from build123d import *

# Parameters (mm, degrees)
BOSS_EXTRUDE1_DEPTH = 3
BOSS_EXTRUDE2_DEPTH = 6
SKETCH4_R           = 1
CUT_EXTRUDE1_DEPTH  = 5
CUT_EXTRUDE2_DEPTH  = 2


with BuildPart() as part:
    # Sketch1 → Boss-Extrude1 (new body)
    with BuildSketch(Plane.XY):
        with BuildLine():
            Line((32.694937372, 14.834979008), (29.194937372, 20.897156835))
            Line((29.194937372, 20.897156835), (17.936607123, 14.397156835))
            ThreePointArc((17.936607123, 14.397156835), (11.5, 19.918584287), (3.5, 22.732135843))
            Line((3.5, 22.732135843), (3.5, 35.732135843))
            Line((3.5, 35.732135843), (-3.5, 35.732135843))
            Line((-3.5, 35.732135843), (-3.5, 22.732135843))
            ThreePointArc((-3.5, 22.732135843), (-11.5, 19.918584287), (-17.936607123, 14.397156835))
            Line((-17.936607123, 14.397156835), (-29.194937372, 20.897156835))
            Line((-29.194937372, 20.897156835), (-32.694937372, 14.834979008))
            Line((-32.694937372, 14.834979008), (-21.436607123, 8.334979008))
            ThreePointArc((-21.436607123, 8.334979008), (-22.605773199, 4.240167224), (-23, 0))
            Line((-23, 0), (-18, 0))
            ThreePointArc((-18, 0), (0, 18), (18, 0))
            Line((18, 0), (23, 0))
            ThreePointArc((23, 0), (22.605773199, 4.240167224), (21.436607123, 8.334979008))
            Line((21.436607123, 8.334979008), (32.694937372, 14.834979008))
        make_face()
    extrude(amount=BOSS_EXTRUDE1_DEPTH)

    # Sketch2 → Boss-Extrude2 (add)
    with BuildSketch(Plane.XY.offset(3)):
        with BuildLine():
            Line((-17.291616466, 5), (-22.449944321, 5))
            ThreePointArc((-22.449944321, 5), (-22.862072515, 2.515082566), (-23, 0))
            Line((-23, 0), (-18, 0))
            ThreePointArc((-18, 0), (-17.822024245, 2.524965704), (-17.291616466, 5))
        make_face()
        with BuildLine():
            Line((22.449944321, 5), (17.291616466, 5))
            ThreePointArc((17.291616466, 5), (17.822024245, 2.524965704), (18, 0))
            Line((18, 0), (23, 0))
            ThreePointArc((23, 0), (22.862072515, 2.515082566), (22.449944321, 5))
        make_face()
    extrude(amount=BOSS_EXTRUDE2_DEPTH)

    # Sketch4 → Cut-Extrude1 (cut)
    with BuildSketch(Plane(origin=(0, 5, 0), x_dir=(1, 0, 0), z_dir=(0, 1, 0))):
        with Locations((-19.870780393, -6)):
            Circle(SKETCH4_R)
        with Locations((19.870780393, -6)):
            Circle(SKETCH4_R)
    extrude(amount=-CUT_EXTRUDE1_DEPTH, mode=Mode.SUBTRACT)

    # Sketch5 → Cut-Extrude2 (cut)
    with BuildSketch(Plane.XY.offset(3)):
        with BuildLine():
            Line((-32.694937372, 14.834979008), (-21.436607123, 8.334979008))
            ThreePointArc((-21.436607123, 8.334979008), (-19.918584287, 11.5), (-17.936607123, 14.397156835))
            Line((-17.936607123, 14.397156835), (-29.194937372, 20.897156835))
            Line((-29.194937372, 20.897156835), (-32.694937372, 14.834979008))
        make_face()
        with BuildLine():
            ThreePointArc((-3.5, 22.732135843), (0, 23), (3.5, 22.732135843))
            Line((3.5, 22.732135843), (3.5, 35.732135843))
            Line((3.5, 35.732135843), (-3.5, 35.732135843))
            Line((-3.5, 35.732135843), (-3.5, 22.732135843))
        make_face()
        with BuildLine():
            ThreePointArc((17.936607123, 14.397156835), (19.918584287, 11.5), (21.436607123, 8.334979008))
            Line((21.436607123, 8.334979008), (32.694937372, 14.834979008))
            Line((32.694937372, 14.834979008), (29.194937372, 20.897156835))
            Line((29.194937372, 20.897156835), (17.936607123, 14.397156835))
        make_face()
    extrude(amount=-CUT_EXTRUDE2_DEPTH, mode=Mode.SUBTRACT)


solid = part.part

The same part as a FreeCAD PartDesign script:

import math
import FreeCAD as App
import Part
import Sketcher
Q = App.Units.Quantity

doc = App.newDocument("Part")
body = doc.addObject("PartDesign::Body", "Body")

# Sketch on XY plane
sketch1 = doc.addObject("Sketcher::SketchObject", "Sketch")
body.addObject(sketch1)
sketch1.AttachmentSupport = (doc.XY_Plane, [""])
sketch1.MapMode = "FlatFace"
sketch1.addGeometry(Part.LineSegment(App.Vector(32.694937, 14.834979, 0), App.Vector(29.194937, 20.897157, 0)), False)
sketch1.addGeometry(Part.LineSegment(App.Vector(29.194937, 20.897157, 0), App.Vector(17.936607, 14.397157, 0)), False)
sketch1.addGeometry(Part.ArcOfCircle(Part.Circle(App.Vector(0, 0, 0), App.Vector(0, 0, 1), 23), math.radians(38.752929), math.radians(81.247071)), False)
sketch1.addGeometry(Part.LineSegment(App.Vector(3.5, 22.732136, 0), App.Vector(3.5, 35.732136, 0)), False)
sketch1.addGeometry(Part.LineSegment(App.Vector(3.5, 35.732136, 0), App.Vector(-3.5, 35.732136, 0)), False)
sketch1.addGeometry(Part.LineSegment(App.Vector(-3.5, 35.732136, 0), App.Vector(-3.5, 22.732136, 0)), False)
sketch1.addGeometry(Part.ArcOfCircle(Part.Circle(App.Vector(0, 0, 0), App.Vector(0, 0, 1), 23), math.radians(98.752929), math.radians(141.247071)), False)
sketch1.addGeometry(Part.LineSegment(App.Vector(-17.936607, 14.397157, 0), App.Vector(-29.194937, 20.897157, 0)), False)
sketch1.addGeometry(Part.LineSegment(App.Vector(-29.194937, 20.897157, 0), App.Vector(-32.694937, 14.834979, 0)), False)
sketch1.addGeometry(Part.LineSegment(App.Vector(-32.694937, 14.834979, 0), App.Vector(-21.436607, 8.334979, 0)), False)
sketch1.addGeometry(Part.ArcOfCircle(Part.Circle(App.Vector(0, 0, 0), App.Vector(0, 0, 1), 23), math.radians(158.752929), math.radians(180)), False)
sketch1.addGeometry(Part.LineSegment(App.Vector(-23, 0, 0), App.Vector(-18, 0, 0)), False)
sketch1.addGeometry(Part.ArcOfCircle(Part.Circle(App.Vector(0, 0, 0), App.Vector(0, 0, 1), 18), math.radians(0), math.radians(180)), False)
sketch1.addGeometry(Part.LineSegment(App.Vector(18, 0, 0), App.Vector(23, 0, 0)), False)
sketch1.addGeometry(Part.ArcOfCircle(Part.Circle(App.Vector(0, 0, 0), App.Vector(0, 0, 1), 23), math.radians(0), math.radians(21.247071)), False)
sketch1.addGeometry(Part.LineSegment(App.Vector(21.436607, 8.334979, 0), App.Vector(32.694937, 14.834979, 0)), False)
sketch1.addConstraint(Sketcher.Constraint("Coincident", 0, 2, 1, 1))
sketch1.addConstraint(Sketcher.Constraint("Coincident", 1, 2, 2, 1))
sketch1.addConstraint(Sketcher.Constraint("Coincident", 2, 2, 3, 1))
sketch1.addConstraint(Sketcher.Constraint("Coincident", 3, 2, 4, 1))
sketch1.addConstraint(Sketcher.Constraint("Coincident", 4, 2, 5, 1))
sketch1.addConstraint(Sketcher.Constraint("Coincident", 5, 2, 6, 1))
sketch1.addConstraint(Sketcher.Constraint("Coincident", 6, 2, 7, 1))
sketch1.addConstraint(Sketcher.Constraint("Coincident", 7, 2, 8, 1))
sketch1.addConstraint(Sketcher.Constraint("Coincident", 8, 2, 9, 1))
sketch1.addConstraint(Sketcher.Constraint("Coincident", 9, 2, 10, 1))
sketch1.addConstraint(Sketcher.Constraint("Coincident", 10, 2, 11, 1))
sketch1.addConstraint(Sketcher.Constraint("Coincident", 11, 2, 12, 2))
sketch1.addConstraint(Sketcher.Constraint("Coincident", 12, 1, 13, 1))
sketch1.addConstraint(Sketcher.Constraint("Coincident", 13, 2, 14, 1))
sketch1.addConstraint(Sketcher.Constraint("Coincident", 14, 2, 15, 1))
sketch1.addConstraint(Sketcher.Constraint("Coincident", 15, 2, 0, 1))
sketch1.addConstraint(Sketcher.Constraint("Vertical", 3))
sketch1.addConstraint(Sketcher.Constraint("Horizontal", 4))
sketch1.addConstraint(Sketcher.Constraint("Vertical", 5))
sketch1.addConstraint(Sketcher.Constraint("Horizontal", 11))
sketch1.addConstraint(Sketcher.Constraint("Horizontal", 13))
sketch1.addConstraint(Sketcher.Constraint("Coincident", 2, 3, -1, 1))
sketch1.addConstraint(Sketcher.Constraint("Coincident", 6, 3, -1, 1))
sketch1.addConstraint(Sketcher.Constraint("Coincident", 10, 3, -1, 1))
sketch1.addConstraint(Sketcher.Constraint("Coincident", 12, 3, -1, 1))
sketch1.addConstraint(Sketcher.Constraint("Coincident", 14, 3, -1, 1))
sketch1.addConstraint(Sketcher.Constraint("Equal", 2, 6))
sketch1.addConstraint(Sketcher.Constraint("Equal", 6, 10))
sketch1.addConstraint(Sketcher.Constraint("Equal", 10, 14))
sketch1.addConstraint(Sketcher.Constraint("Symmetric", 0, 2, 7, 2, -2))
sketch1.addConstraint(Sketcher.Constraint("Symmetric", 8, 2, 15, 2, -2))
sketch1.addConstraint(Sketcher.Constraint("PointOnObject", 10, 2, -1))
sketch1.addConstraint(Sketcher.Constraint("PointOnObject", 12, 1, -1))
sketch1.addConstraint(Sketcher.Constraint("Perpendicular", 0, 1))
sketch1.addConstraint(Sketcher.Constraint("Perpendicular", 7, 8))
sketch1.addConstraint(Sketcher.Constraint("Perpendicular", 8, 9))
sketch1.addConstraint(Sketcher.Constraint("Parallel", 1, 15))
sketch1.addConstraint(Sketcher.Constraint("Horizontal", 2, 2, 5, 2))
sketch1.addConstraint(Sketcher.Constraint("Equal", 7, 9))
sketch1.addConstraint(Sketcher.Constraint("Radius", 2, 23.0))
sketch1.addConstraint(Sketcher.Constraint("Radius", 12, 18.0))
sketch1.addConstraint(Sketcher.Constraint("DistanceX", 4, 2, 4, 1, 7.0))
sketch1.addConstraint(Sketcher.Constraint("DistanceY", 3, 1, 3, 2, 13.0))
sketch1.addConstraint(Sketcher.Constraint("Angle", 0, Q("120 deg")))
sketch1.addConstraint(Sketcher.Constraint("Distance", 0, 7.0))
sketch1.addConstraint(Sketcher.Constraint("Distance", 1, 13.0))
pad1 = doc.addObject("PartDesign::Pad", "Pad")
body.addObject(pad1)
pad1.Profile = sketch1
pad1.Length = 3

# Sketch on XY plane
sketch2 = doc.addObject("Sketcher::SketchObject", "Sketch001")
body.addObject(sketch2)
sketch2.AttachmentSupport = (doc.XY_Plane, [""])
sketch2.MapMode = "FlatFace"
sketch2.AttachmentOffset = App.Placement(App.Vector(0, 0, 3), App.Rotation())
sketch2.addGeometry(Part.LineSegment(App.Vector(-17.291616, 5, 0), App.Vector(-22.449944, 5, 0)), False)
sketch2.addGeometry(Part.ArcOfCircle(Part.Circle(App.Vector(0, 0, 0), App.Vector(0, 0, 1), 23), math.radians(167.444142), math.radians(180)), False)
sketch2.addGeometry(Part.LineSegment(App.Vector(-23, 0, 0), App.Vector(-18, 0, 0)), False)
sketch2.addGeometry(Part.ArcOfCircle(Part.Circle(App.Vector(0, 0, 0), App.Vector(0, 0, 1), 18), math.radians(163.87238), math.radians(180)), False)
sketch2.addGeometry(Part.LineSegment(App.Vector(22.449944, 5, 0), App.Vector(17.291616, 5, 0)), False)
sketch2.addGeometry(Part.ArcOfCircle(Part.Circle(App.Vector(0, 0, 0), App.Vector(0, 0, 1), 18), math.radians(0), math.radians(16.12762)), False)
sketch2.addGeometry(Part.LineSegment(App.Vector(18, 0, 0), App.Vector(23, 0, 0)), False)
sketch2.addGeometry(Part.ArcOfCircle(Part.Circle(App.Vector(0, 0, 0), App.Vector(0, 0, 1), 23), math.radians(0), math.radians(12.555858)), False)
sketch2.addConstraint(Sketcher.Constraint("Coincident", 0, 2, 1, 1))
sketch2.addConstraint(Sketcher.Constraint("Coincident", 1, 2, 2, 1))
sketch2.addConstraint(Sketcher.Constraint("Coincident", 2, 2, 3, 2))
sketch2.addConstraint(Sketcher.Constraint("Coincident", 3, 1, 0, 1))
sketch2.addConstraint(Sketcher.Constraint("Coincident", 4, 2, 5, 2))
sketch2.addConstraint(Sketcher.Constraint("Coincident", 5, 1, 6, 1))
sketch2.addConstraint(Sketcher.Constraint("Coincident", 6, 2, 7, 1))
sketch2.addConstraint(Sketcher.Constraint("Coincident", 7, 2, 4, 1))
sketch2.addConstraint(Sketcher.Constraint("Horizontal", 0))
sketch2.addConstraint(Sketcher.Constraint("Horizontal", 2))
sketch2.addConstraint(Sketcher.Constraint("Horizontal", 4))
sketch2.addConstraint(Sketcher.Constraint("Horizontal", 6))
sketch2.addConstraint(Sketcher.Constraint("Coincident", 1, 3, -1, 1))
sketch2.addConstraint(Sketcher.Constraint("Coincident", 3, 3, -1, 1))
sketch2.addConstraint(Sketcher.Constraint("Coincident", 5, 3, -1, 1))
sketch2.addConstraint(Sketcher.Constraint("Coincident", 7, 3, -1, 1))
sketch2.addConstraint(Sketcher.Constraint("Equal", 3, 5))
sketch2.addConstraint(Sketcher.Constraint("Equal", 1, 7))
sketch2.addConstraint(Sketcher.Constraint("PointOnObject", 1, 2, -1))
sketch2.addConstraint(Sketcher.Constraint("PointOnObject", 5, 1, -1))
sketch2.addConstraint(Sketcher.Constraint("Horizontal", 3, 1, 4, 2))
sketch2.addConstraint(Sketcher.Constraint("Radius", 1, 23.0))
sketch2.addConstraint(Sketcher.Constraint("Radius", 3, 18.0))
sketch2.addConstraint(Sketcher.Constraint("DistanceY", -1, 1, 0, 2, 5.0))
pad2 = doc.addObject("PartDesign::Pad", "Pad001")
body.addObject(pad2)
pad2.Profile = sketch2
pad2.Length = 6

# Sketch on XZ plane
sketch3 = doc.addObject("Sketcher::SketchObject", "Sketch002")
body.addObject(sketch3)
sketch3.AttachmentSupport = (doc.XZ_Plane, [""])
sketch3.MapMode = "FlatFace"
sketch3.AttachmentOffset = App.Placement(App.Vector(0, 0, -5), App.Rotation())
sketch3.addGeometry(Part.Circle(App.Vector(-19.87078, 6, 0), App.Vector(0, 0, 1), 1), False)
sketch3.addGeometry(Part.Circle(App.Vector(19.87078, 6, 0), App.Vector(0, 0, 1), 1), False)
sketch3.addConstraint(Sketcher.Constraint("Equal", 0, 1))
sketch3.addConstraint(Sketcher.Constraint("Symmetric", 0, 3, 1, 3, -2))
sketch3.addConstraint(Sketcher.Constraint("Diameter", 0, 2.0))
sketch3.addConstraint(Sketcher.Constraint("DistanceY", -1, 1, 0, 3, 6.0))
sketch3.addConstraint(Sketcher.Constraint("DistanceX", 0, 3, -1, 1, 19.87078))
pocket1 = doc.addObject("PartDesign::Pocket", "Pocket")
body.addObject(pocket1)
pocket1.Profile = sketch3
pocket1.Length = 5
pocket1.Reversed = True

# Sketch on XY plane
sketch4 = doc.addObject("Sketcher::SketchObject", "Sketch003")
body.addObject(sketch4)
sketch4.AttachmentSupport = (doc.XY_Plane, [""])
sketch4.MapMode = "FlatFace"
sketch4.AttachmentOffset = App.Placement(App.Vector(0, 0, 3), App.Rotation())
sketch4.addGeometry(Part.LineSegment(App.Vector(-32.694937, 14.834979, 0), App.Vector(-21.436607, 8.334979, 0)), False)
sketch4.addGeometry(Part.ArcOfCircle(Part.Circle(App.Vector(0, 0, 0), App.Vector(0, 0, 1), 23), math.radians(141.247071), math.radians(158.752929)), False)
sketch4.addGeometry(Part.LineSegment(App.Vector(-17.936607, 14.397157, 0), App.Vector(-29.194937, 20.897157, 0)), False)
sketch4.addGeometry(Part.LineSegment(App.Vector(-29.194937, 20.897157, 0), App.Vector(-32.694937, 14.834979, 0)), False)
sketch4.addGeometry(Part.ArcOfCircle(Part.Circle(App.Vector(0, 0, 0), App.Vector(0, 0, 1), 23), math.radians(81.247071), math.radians(98.752929)), False)
sketch4.addGeometry(Part.LineSegment(App.Vector(3.5, 22.732136, 0), App.Vector(3.5, 35.732136, 0)), False)
sketch4.addGeometry(Part.LineSegment(App.Vector(3.5, 35.732136, 0), App.Vector(-3.5, 35.732136, 0)), False)
sketch4.addGeometry(Part.LineSegment(App.Vector(-3.5, 35.732136, 0), App.Vector(-3.5, 22.732136, 0)), False)
sketch4.addGeometry(Part.ArcOfCircle(Part.Circle(App.Vector(0, 0, 0), App.Vector(0, 0, 1), 23), math.radians(21.247071), math.radians(38.752929)), False)
sketch4.addGeometry(Part.LineSegment(App.Vector(21.436607, 8.334979, 0), App.Vector(32.694937, 14.834979, 0)), False)
sketch4.addGeometry(Part.LineSegment(App.Vector(32.694937, 14.834979, 0), App.Vector(29.194937, 20.897157, 0)), False)
sketch4.addGeometry(Part.LineSegment(App.Vector(29.194937, 20.897157, 0), App.Vector(17.936607, 14.397157, 0)), False)
sketch4.addConstraint(Sketcher.Constraint("Coincident", 0, 2, 1, 2))
sketch4.addConstraint(Sketcher.Constraint("Coincident", 1, 1, 2, 1))
sketch4.addConstraint(Sketcher.Constraint("Coincident", 2, 2, 3, 1))
sketch4.addConstraint(Sketcher.Constraint("Coincident", 3, 2, 0, 1))
sketch4.addConstraint(Sketcher.Constraint("Coincident", 4, 1, 5, 1))
sketch4.addConstraint(Sketcher.Constraint("Coincident", 5, 2, 6, 1))
sketch4.addConstraint(Sketcher.Constraint("Coincident", 6, 2, 7, 1))
sketch4.addConstraint(Sketcher.Constraint("Coincident", 7, 2, 4, 2))
sketch4.addConstraint(Sketcher.Constraint("Coincident", 8, 1, 9, 1))
sketch4.addConstraint(Sketcher.Constraint("Coincident", 9, 2, 10, 1))
sketch4.addConstraint(Sketcher.Constraint("Coincident", 10, 2, 11, 1))
sketch4.addConstraint(Sketcher.Constraint("Coincident", 11, 2, 8, 2))
sketch4.addConstraint(Sketcher.Constraint("Vertical", 5))
sketch4.addConstraint(Sketcher.Constraint("Horizontal", 6))
sketch4.addConstraint(Sketcher.Constraint("Vertical", 7))
sketch4.addConstraint(Sketcher.Constraint("Coincident", 1, 3, -1, 1))
sketch4.addConstraint(Sketcher.Constraint("Coincident", 4, 3, -1, 1))
sketch4.addConstraint(Sketcher.Constraint("Coincident", 8, 3, -1, 1))
sketch4.addConstraint(Sketcher.Constraint("Equal", 1, 4))
sketch4.addConstraint(Sketcher.Constraint("Equal", 4, 8))
sketch4.addConstraint(Sketcher.Constraint("Symmetric", 3, 2, 9, 2, -2))
sketch4.addConstraint(Sketcher.Constraint("Symmetric", 2, 2, 10, 2, -2))
sketch4.addConstraint(Sketcher.Constraint("Parallel", 0, 2))
sketch4.addConstraint(Sketcher.Constraint("Perpendicular", 2, 3))
sketch4.addConstraint(Sketcher.Constraint("Perpendicular", 9, 10))
sketch4.addConstraint(Sketcher.Constraint("Perpendicular", 10, 11))
sketch4.addConstraint(Sketcher.Constraint("Horizontal", 4, 1, 7, 2))
sketch4.addConstraint(Sketcher.Constraint("Equal", 0, 2))
sketch4.addConstraint(Sketcher.Constraint("Radius", 1, 23.0))
sketch4.addConstraint(Sketcher.Constraint("DistanceX", 6, 2, 6, 1, 7.0))
sketch4.addConstraint(Sketcher.Constraint("DistanceY", 5, 1, 5, 2, 13.0))
sketch4.addConstraint(Sketcher.Constraint("Angle", 0, Q("-30 deg")))
sketch4.addConstraint(Sketcher.Constraint("Distance", 0, 13.0))
sketch4.addConstraint(Sketcher.Constraint("Distance", 3, 7.0))
pocket2 = doc.addObject("PartDesign::Pocket", "Pocket001")
body.addObject(pocket2)
pocket2.Profile = sketch4
pocket2.Length = 2

doc.recompute()
